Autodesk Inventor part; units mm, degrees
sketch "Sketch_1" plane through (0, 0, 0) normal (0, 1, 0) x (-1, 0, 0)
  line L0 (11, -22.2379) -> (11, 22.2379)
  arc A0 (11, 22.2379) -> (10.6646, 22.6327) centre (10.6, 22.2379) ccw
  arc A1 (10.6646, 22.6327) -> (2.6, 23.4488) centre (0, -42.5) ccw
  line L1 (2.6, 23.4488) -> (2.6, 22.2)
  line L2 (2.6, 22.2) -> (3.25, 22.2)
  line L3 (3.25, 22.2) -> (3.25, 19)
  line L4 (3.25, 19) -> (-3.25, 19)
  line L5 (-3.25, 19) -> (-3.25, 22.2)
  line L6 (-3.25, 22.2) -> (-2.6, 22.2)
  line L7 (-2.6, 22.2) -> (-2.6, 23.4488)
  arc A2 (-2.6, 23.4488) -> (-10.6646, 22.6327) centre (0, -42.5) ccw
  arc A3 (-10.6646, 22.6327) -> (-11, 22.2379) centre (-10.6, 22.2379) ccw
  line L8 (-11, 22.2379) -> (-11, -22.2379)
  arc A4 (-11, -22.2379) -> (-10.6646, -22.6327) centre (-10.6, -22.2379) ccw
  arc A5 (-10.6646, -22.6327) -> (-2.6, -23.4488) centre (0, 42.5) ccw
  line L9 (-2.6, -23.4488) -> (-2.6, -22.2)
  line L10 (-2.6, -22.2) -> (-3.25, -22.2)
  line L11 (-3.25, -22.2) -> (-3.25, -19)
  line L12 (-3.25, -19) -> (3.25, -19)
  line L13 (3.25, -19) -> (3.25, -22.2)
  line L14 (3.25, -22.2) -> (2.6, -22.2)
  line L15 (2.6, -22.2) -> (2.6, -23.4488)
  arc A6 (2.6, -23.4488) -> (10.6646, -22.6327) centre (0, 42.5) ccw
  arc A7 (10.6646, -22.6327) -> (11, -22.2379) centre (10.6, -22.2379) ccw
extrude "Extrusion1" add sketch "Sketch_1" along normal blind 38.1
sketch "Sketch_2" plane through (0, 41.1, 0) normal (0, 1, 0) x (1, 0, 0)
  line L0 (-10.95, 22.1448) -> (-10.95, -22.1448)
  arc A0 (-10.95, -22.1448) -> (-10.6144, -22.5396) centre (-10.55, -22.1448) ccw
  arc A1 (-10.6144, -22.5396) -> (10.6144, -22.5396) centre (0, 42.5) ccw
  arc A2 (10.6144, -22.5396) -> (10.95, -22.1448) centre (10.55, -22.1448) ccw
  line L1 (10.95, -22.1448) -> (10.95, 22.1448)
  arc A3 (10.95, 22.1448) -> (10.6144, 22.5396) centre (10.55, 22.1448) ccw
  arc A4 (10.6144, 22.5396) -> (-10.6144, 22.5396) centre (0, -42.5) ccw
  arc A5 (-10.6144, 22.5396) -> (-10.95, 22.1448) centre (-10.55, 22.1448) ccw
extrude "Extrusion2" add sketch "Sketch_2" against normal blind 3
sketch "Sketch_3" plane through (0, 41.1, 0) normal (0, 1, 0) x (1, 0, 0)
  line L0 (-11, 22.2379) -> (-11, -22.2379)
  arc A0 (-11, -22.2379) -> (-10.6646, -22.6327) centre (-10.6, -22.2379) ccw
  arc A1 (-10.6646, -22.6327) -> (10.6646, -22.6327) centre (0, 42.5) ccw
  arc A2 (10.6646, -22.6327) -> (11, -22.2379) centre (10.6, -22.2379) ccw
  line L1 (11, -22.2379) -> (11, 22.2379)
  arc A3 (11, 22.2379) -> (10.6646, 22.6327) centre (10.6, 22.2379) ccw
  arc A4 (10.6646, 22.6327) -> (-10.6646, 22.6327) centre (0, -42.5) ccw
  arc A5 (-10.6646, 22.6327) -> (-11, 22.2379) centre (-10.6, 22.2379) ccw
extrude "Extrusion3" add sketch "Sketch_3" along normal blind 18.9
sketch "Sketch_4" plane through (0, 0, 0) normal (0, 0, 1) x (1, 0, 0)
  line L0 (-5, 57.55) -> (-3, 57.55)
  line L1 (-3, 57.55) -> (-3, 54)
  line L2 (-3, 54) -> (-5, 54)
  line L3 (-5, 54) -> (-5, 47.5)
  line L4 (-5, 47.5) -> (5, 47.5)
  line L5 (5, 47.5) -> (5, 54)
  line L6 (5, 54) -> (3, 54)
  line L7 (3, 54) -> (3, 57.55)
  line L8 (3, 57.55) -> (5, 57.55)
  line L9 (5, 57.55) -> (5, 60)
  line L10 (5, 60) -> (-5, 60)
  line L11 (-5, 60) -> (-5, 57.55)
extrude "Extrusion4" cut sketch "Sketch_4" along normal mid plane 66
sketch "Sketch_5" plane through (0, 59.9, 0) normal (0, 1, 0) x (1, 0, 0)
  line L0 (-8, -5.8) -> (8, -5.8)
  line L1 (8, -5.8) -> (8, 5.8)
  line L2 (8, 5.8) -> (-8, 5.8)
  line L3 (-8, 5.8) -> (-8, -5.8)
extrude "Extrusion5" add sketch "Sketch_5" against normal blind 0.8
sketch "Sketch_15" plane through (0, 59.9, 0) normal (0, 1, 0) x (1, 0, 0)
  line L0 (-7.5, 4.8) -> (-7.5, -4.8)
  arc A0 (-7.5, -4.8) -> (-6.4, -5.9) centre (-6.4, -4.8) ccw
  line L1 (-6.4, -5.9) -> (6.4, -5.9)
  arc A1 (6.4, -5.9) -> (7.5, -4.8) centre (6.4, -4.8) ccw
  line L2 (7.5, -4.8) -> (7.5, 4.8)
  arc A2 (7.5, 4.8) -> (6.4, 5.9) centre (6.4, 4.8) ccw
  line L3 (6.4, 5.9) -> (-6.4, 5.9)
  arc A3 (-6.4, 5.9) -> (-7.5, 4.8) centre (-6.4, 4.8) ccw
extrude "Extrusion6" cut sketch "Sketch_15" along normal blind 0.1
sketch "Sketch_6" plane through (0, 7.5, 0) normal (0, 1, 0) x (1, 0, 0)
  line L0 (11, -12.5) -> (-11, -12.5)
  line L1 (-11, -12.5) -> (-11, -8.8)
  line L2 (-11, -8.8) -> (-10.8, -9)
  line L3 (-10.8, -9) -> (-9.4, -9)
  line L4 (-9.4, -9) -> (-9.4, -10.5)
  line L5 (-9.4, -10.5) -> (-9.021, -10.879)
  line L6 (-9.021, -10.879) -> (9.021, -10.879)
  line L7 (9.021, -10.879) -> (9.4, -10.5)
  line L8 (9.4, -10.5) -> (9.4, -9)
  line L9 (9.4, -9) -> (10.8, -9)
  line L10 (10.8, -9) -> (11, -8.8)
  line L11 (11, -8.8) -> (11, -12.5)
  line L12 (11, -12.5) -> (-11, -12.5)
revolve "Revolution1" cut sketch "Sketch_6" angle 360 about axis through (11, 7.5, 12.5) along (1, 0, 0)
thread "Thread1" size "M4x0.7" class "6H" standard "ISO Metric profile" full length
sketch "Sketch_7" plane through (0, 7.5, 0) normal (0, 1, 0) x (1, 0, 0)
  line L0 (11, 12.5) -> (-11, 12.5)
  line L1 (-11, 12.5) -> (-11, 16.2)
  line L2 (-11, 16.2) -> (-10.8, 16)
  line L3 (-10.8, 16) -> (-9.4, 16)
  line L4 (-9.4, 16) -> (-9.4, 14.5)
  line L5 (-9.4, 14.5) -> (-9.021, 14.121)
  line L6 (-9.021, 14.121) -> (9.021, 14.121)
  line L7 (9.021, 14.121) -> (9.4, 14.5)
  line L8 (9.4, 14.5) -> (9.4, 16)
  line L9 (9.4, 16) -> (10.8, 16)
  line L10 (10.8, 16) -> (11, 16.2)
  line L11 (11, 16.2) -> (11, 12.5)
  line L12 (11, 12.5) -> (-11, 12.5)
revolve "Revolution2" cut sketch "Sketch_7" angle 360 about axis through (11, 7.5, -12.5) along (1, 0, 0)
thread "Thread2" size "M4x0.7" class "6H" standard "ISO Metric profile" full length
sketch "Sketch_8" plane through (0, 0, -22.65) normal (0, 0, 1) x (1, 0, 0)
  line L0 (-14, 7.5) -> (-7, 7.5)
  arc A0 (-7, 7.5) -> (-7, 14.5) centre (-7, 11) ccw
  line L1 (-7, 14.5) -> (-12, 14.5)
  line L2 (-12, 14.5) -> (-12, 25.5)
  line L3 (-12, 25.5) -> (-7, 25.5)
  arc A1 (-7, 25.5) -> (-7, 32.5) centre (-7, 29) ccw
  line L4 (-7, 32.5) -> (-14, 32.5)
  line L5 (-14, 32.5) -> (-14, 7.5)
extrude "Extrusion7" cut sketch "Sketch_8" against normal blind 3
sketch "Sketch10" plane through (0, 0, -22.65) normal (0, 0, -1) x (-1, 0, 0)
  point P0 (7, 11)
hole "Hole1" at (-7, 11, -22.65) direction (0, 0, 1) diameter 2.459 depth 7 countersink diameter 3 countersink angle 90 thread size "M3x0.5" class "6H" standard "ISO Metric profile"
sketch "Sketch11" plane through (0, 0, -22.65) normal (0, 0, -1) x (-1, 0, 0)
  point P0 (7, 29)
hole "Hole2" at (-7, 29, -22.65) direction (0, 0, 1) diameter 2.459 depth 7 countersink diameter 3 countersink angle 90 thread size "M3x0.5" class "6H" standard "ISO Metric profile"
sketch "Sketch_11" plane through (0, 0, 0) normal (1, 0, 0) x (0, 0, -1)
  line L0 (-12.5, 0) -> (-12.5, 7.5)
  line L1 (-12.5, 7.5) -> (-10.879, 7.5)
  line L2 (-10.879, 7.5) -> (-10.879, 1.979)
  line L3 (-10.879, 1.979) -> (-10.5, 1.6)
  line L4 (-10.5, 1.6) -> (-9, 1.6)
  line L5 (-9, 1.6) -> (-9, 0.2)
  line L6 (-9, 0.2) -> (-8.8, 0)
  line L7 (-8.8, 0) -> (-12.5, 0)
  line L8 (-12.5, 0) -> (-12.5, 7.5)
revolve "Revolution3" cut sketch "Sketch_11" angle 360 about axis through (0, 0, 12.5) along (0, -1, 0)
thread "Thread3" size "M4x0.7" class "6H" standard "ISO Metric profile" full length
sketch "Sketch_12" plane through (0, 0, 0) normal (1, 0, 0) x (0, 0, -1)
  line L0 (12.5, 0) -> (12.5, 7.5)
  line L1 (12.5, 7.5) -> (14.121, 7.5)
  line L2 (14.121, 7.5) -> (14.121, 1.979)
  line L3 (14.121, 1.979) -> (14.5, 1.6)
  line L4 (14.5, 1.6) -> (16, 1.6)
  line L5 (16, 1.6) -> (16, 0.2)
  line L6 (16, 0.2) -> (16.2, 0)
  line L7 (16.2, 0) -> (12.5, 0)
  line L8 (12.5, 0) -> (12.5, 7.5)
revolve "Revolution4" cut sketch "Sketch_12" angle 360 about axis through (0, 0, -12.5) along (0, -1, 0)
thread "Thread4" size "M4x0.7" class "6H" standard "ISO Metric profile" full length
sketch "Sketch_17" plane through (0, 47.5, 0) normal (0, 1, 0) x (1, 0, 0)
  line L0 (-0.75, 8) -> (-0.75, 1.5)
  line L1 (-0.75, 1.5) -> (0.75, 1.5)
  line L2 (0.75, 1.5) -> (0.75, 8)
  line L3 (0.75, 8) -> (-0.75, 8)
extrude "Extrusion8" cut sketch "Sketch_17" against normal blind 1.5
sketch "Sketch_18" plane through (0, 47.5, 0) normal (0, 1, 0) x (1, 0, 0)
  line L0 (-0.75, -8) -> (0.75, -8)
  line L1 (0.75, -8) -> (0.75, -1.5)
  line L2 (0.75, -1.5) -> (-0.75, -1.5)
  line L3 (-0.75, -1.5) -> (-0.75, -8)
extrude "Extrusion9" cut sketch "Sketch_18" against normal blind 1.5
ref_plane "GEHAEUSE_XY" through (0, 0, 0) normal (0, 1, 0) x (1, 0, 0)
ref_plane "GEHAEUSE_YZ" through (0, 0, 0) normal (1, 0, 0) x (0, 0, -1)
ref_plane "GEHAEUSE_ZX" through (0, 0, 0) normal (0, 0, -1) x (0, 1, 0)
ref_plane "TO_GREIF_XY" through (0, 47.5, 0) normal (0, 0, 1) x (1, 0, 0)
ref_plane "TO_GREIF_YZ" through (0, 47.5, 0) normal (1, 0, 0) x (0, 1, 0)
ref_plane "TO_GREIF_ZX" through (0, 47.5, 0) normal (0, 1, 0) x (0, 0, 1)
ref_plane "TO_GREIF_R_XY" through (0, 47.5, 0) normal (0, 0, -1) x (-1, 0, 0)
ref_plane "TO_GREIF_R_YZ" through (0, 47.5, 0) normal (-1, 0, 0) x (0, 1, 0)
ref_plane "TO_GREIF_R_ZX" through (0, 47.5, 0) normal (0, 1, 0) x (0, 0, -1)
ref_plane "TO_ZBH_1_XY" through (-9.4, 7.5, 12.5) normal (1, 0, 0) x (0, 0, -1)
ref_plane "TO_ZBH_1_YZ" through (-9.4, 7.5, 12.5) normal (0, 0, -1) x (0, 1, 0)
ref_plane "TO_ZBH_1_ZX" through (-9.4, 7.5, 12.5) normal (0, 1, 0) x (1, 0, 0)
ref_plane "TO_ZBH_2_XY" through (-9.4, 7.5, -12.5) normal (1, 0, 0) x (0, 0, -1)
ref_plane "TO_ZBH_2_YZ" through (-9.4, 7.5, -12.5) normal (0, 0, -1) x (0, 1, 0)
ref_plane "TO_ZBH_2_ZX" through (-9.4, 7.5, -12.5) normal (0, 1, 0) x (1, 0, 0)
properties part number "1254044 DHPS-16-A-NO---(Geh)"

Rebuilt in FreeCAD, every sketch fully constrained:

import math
import FreeCAD as App
import Part
import Sketcher
from FreeCAD import Vector
Q = App.Units.Quantity


def add_polygon(sketch, points):
    """Adds a closed chain of lines whose ends are joined by coincident constraints."""
    first, n = sketch.GeometryCount, len(points)
    for a, b in zip(points, points[1:] + points[:1]):
        sketch.addGeometry(Part.LineSegment(App.Vector(*a, 0), App.Vector(*b, 0)), False)
    for i in range(n):
        sketch.addConstraint(Sketcher.Constraint("Coincident", first + i, 2, first + (i + 1) % n, 1))

doc = App.newDocument("Part")
body = doc.addObject("PartDesign::Body", "Body")

sketch1 = body.newObject("Sketcher::SketchObject", "Sketch")
sketch1.AttachmentSupport = (doc.getObject("XZ_Plane"), [""])
sketch1.MapMode = "FlatFace"
sketch1.addGeometry([
    Part.ArcOfCircle(Part.Circle(Vector(-10.6, -22.24, 0), Vector(0, 0, 1), 0.4), math.radians(180), math.radians(261)),
    Part.LineSegment(Vector(-11, -22.24, 0), Vector(-11, 22.24, 0)),
    Part.ArcOfCircle(Part.Circle(Vector(-10.6, 22.24, 0), Vector(0, 0, 1), 0.4), math.radians(99), math.radians(180)),
    Part.ArcOfCircle(Part.Circle(Vector(0, -42.5, 0), Vector(0, 0, 1), 66), math.radians(92.26), math.radians(99.3)),
    Part.LineSegment(Vector(-2.6, 23.45, 0), Vector(-2.6, 22.2, 0)),
    Part.LineSegment(Vector(-2.6, 22.2, 0), Vector(-3.25, 22.2, 0)),
    Part.LineSegment(Vector(-3.25, 22.2, 0), Vector(-3.25, 19, 0)),
    Part.LineSegment(Vector(-3.25, 19, 0), Vector(3.25, 19, 0)),
    Part.LineSegment(Vector(3.25, 19, 0), Vector(3.25, 22.2, 0)),
    Part.LineSegment(Vector(3.25, 22.2, 0), Vector(2.6, 22.2, 0)),
    Part.LineSegment(Vector(2.6, 22.2, 0), Vector(2.6, 23.45, 0)),
    Part.ArcOfCircle(Part.Circle(Vector(0, -42.5, 0), Vector(0, 0, 1), 66), math.radians(80.7), math.radians(87.74)),
    Part.ArcOfCircle(Part.Circle(Vector(10.6, 22.24, 0), Vector(0, 0, 1), 0.4), math.radians(0), math.radians(81)),
    Part.LineSegment(Vector(11, 22.24, 0), Vector(11, -22.24, 0)),
    Part.ArcOfCircle(Part.Circle(Vector(10.6, -22.24, 0), Vector(0, 0, 1), 0.4), math.radians(-81), math.radians(0)),
    Part.ArcOfCircle(Part.Circle(Vector(0, 42.5, 0), Vector(0, 0, 1), 66), math.radians(-87.74), math.radians(-80.7)),
    Part.LineSegment(Vector(2.6, -23.45, 0), Vector(2.6, -22.2, 0)),
    Part.LineSegment(Vector(2.6, -22.2, 0), Vector(3.25, -22.2, 0)),
    Part.LineSegment(Vector(3.25, -22.2, 0), Vector(3.25, -19, 0)),
    Part.LineSegment(Vector(3.25, -19, 0), Vector(-3.25, -19, 0)),
    Part.LineSegment(Vector(-3.25, -19, 0), Vector(-3.25, -22.2, 0)),
    Part.LineSegment(Vector(-3.25, -22.2, 0), Vector(-2.6, -22.2, 0)),
    Part.LineSegment(Vector(-2.6, -22.2, 0), Vector(-2.6, -23.45, 0)),
    Part.ArcOfCircle(Part.Circle(Vector(0, 42.5, 0), Vector(0, 0, 1), 66), math.radians(-99.3), math.radians(-92.26)),
], False)
sketch1.addConstraint([
    Sketcher.Constraint("Tangent", 0, 1, 1, 1),
    Sketcher.Constraint("Tangent", 1, 2, 2, 2),
    Sketcher.Constraint("Tangent", 2, 1, 3, 2),
    Sketcher.Constraint("Coincident", 3, 1, 4, 1),
    Sketcher.Constraint("Coincident", 4, 2, 5, 1),
    Sketcher.Constraint("Coincident", 5, 2, 6, 1),
    Sketcher.Constraint("Coincident", 6, 2, 7, 1),
    Sketcher.Constraint("Coincident", 7, 2, 8, 1),
    Sketcher.Constraint("Coincident", 8, 2, 9, 1),
    Sketcher.Constraint("Coincident", 9, 2, 10, 1),
    Sketcher.Constraint("Coincident", 10, 2, 11, 2),
    Sketcher.Constraint("Tangent", 11, 1, 12, 2),
    Sketcher.Constraint("Tangent", 12, 1, 13, 1),
    Sketcher.Constraint("Tangent", 13, 2, 14, 2),
    Sketcher.Constraint("Tangent", 14, 1, 15, 2),
    Sketcher.Constraint("Coincident", 15, 1, 16, 1),
    Sketcher.Constraint("Coincident", 16, 2, 17, 1),
    Sketcher.Constraint("Coincident", 17, 2, 18, 1),
    Sketcher.Constraint("Coincident", 18, 2, 19, 1),
    Sketcher.Constraint("Coincident", 19, 2, 20, 1),
    Sketcher.Constraint("Coincident", 20, 2, 21, 1),
    Sketcher.Constraint("Coincident", 21, 2, 22, 1),
    Sketcher.Constraint("Coincident", 22, 2, 23, 2),
    Sketcher.Constraint("Tangent", 23, 1, 0, 2),
    Sketcher.Constraint("Vertical", 1),
    Sketcher.Constraint("Vertical", 4),
    Sketcher.Constraint("Horizontal", 5),
    Sketcher.Constraint("Vertical", 6),
    Sketcher.Constraint("Horizontal", 7),
    Sketcher.Constraint("Vertical", 8),
    Sketcher.Constraint("Horizontal", 9),
    Sketcher.Constraint("Vertical", 10),
    Sketcher.Constraint("Vertical", 13),
    Sketcher.Constraint("Vertical", 16),
    Sketcher.Constraint("Horizontal", 17),
    Sketcher.Constraint("Vertical", 18),
    Sketcher.Constraint("Horizontal", 19),
    Sketcher.Constraint("Vertical", 20),
    Sketcher.Constraint("Horizontal", 21),
    Sketcher.Constraint("Vertical", 22),
    Sketcher.Constraint("Equal", 0, 2),
    Sketcher.Constraint("Equal", 2, 12),
    Sketcher.Constraint("Equal", 12, 14),
    Sketcher.Constraint("Equal", 3, 15),
    Sketcher.Constraint("Equal", 11, 23),
    Sketcher.Constraint("Symmetric", 0, 3, 12, 3, -1, 1),
    Sketcher.Constraint("Symmetric", 3, 3, 15, 3, -1, 1),
    Sketcher.Constraint("Symmetric", 4, 2, 16, 2, -1, 1),
    Sketcher.Constraint("Symmetric", 6, 2, 18, 2, -1, 1),
    Sketcher.Constraint("Symmetric", 8, 2, 20, 2, -1, 1),
    Sketcher.Constraint("Symmetric", 10, 2, 22, 2, -1, 1),
    Sketcher.Constraint("Symmetric", 5, 2, 8, 2, -2),
    Sketcher.Constraint("Symmetric", 3, 1, 10, 2, -2),
    Sketcher.Constraint("Horizontal", 2, 3, 12, 3),
    Sketcher.Constraint("Radius", 0, Q("0.4 mm")),
    Sketcher.Constraint("DistanceX", 7, 1, 7, 2, Q("6.5 mm")),
    Sketcher.Constraint("DistanceY", 6, 2, 6, 1, Q("3.2 mm")),
    Sketcher.Constraint("DistanceX", 0, 1, -1, 1, Q("11 mm")),
    Sketcher.Constraint("DistanceY", -1, 1, 6, 2, Q("19 mm")),
    Sketcher.Constraint("DistanceY", 11, 3, 15, 3, Q("85 mm")),
    Sketcher.Constraint("DistanceX", 2, 3, 3, 1, Q("8 mm")),
    Sketcher.Constraint("Radius", 3, Q("66.0039 mm")),
    Sketcher.Constraint("Radius", 11, Q("65.9962 mm")),
    Sketcher.Constraint("DistanceY", 1, 1, 1, 2, Q("44.4758 mm")),
])
pad1 = body.newObject("PartDesign::Pad", "Pad")
pad1.Profile = sketch1
pad1.Length = 38.1
pad1.Reversed = True

sketch2 = body.newObject("Sketcher::SketchObject", "Sketch001")
sketch2.AttachmentSupport = (doc.getObject("XZ_Plane"), [""])
sketch2.MapMode = "FlatFace"
sketch2.AttachmentOffset = App.Placement(Vector(0, 0, -41.1), App.Rotation())
sketch2.addGeometry([
    Part.ArcOfCircle(Part.Circle(Vector(-10.55, -22.14, 0), Vector(0, 0, 1), 0.4), math.radians(180), math.radians(261)),
    Part.LineSegment(Vector(-10.95, -22.14, 0), Vector(-10.95, 22.14, 0)),
    Part.ArcOfCircle(Part.Circle(Vector(-10.55, 22.14, 0), Vector(0, 0, 1), 0.4), math.radians(99), math.radians(180)),
    Part.ArcOfCircle(Part.Circle(Vector(0, -42.5, 0), Vector(0, 0, 1), 65.9), math.radians(80.73), math.radians(99.27)),
    Part.ArcOfCircle(Part.Circle(Vector(10.55, 22.14, 0), Vector(0, 0, 1), 0.4), math.radians(0), math.radians(81)),
    Part.LineSegment(Vector(10.95, 22.14, 0), Vector(10.95, -22.14, 0)),
    Part.ArcOfCircle(Part.Circle(Vector(10.55, -22.14, 0), Vector(0, 0, 1), 0.4), math.radians(-81), math.radians(0)),
    Part.ArcOfCircle(Part.Circle(Vector(0, 42.5, 0), Vector(0, 0, 1), 65.9), math.radians(-99.27), math.radians(-80.73)),
], False)
sketch2.addConstraint([
    Sketcher.Constraint("Tangent", 0, 1, 1, 1),
    Sketcher.Constraint("Tangent", 1, 2, 2, 2),
    Sketcher.Constraint("Tangent", 2, 1, 3, 2),
    Sketcher.Constraint("Tangent", 3, 1, 4, 2),
    Sketcher.Constraint("Tangent", 4, 1, 5, 1),
    Sketcher.Constraint("Tangent", 5, 2, 6, 2),
    Sketcher.Constraint("Tangent", 6, 1, 7, 2),
    Sketcher.Constraint("Tangent", 7, 1, 0, 2),
    Sketcher.Constraint("Vertical", 1),
    Sketcher.Constraint("Vertical", 5),
    Sketcher.Constraint("Equal", 0, 2),
    Sketcher.Constraint("Equal", 2, 4),
    Sketcher.Constraint("Equal", 4, 6),
    Sketcher.Constraint("Equal", 3, 7),
    Sketcher.Constraint("Symmetric", 0, 3, 4, 3, -1, 1),
    Sketcher.Constraint("Symmetric", 3, 3, 7, 3, -1),
    Sketcher.Constraint("Radius", 0, Q("0.4 mm")),
    Sketcher.Constraint("Radius", 3, Q("65.9 mm")),
    Sketcher.Constraint("DistanceY", 3, 3, 7, 3, Q("85 mm")),
    Sketcher.Constraint("DistanceX", 2, 3, 4, 3, Q("21.1 mm")),
])
pad2 = body.newObject("PartDesign::Pad", "Pad001")
pad2.Profile = sketch2
pad2.Length = 3

sketch3 = body.newObject("Sketcher::SketchObject", "Sketch002")
sketch3.AttachmentSupport = (doc.getObject("XZ_Plane"), [""])
sketch3.MapMode = "FlatFace"
sketch3.AttachmentOffset = App.Placement(Vector(0, 0, -41.1), App.Rotation())
sketch3.addGeometry([
    Part.ArcOfCircle(Part.Circle(Vector(-10.6, -22.24, 0), Vector(0, 0, 1), 0.4), math.radians(180), math.radians(261)),
    Part.LineSegment(Vector(-11, -22.24, 0), Vector(-11, 22.24, 0)),
    Part.ArcOfCircle(Part.Circle(Vector(-10.6, 22.24, 0), Vector(0, 0, 1), 0.4), math.radians(99), math.radians(180)),
    Part.ArcOfCircle(Part.Circle(Vector(0, -42.5, 0), Vector(0, 0, 1), 66), math.radians(80.7), math.radians(99.3)),
    Part.ArcOfCircle(Part.Circle(Vector(10.6, 22.24, 0), Vector(0, 0, 1), 0.4), math.radians(0), math.radians(81)),
    Part.LineSegment(Vector(11, 22.24, 0), Vector(11, -22.24, 0)),
    Part.ArcOfCircle(Part.Circle(Vector(10.6, -22.24, 0), Vector(0, 0, 1), 0.4), math.radians(-81), math.radians(0)),
    Part.ArcOfCircle(Part.Circle(Vector(0, 42.5, 0), Vector(0, 0, 1), 66), math.radians(-99.3), math.radians(-80.7)),
], False)
sketch3.addConstraint([
    Sketcher.Constraint("Tangent", 0, 1, 1, 1),
    Sketcher.Constraint("Tangent", 1, 2, 2, 2),
    Sketcher.Constraint("Tangent", 2, 1, 3, 2),
    Sketcher.Constraint("Tangent", 3, 1, 4, 2),
    Sketcher.Constraint("Tangent", 4, 1, 5, 1),
    Sketcher.Constraint("Tangent", 5, 2, 6, 2),
    Sketcher.Constraint("Tangent", 6, 1, 7, 2),
    Sketcher.Constraint("Tangent", 7, 1, 0, 2),
    Sketcher.Constraint("Vertical", 1),
    Sketcher.Constraint("Vertical", 5),
    Sketcher.Constraint("Equal", 0, 2),
    Sketcher.Constraint("Equal", 2, 4),
    Sketcher.Constraint("Equal", 4, 6),
    Sketcher.Constraint("Equal", 3, 7),
    Sketcher.Constraint("Symmetric", 0, 3, 4, 3, -1, 1),
    Sketcher.Constraint("Symmetric", 3, 3, 7, 3, -1),
    Sketcher.Constraint("Radius", 3, Q("66 mm")),
    Sketcher.Constraint("Radius", 0, Q("0.4 mm")),
    Sketcher.Constraint("DistanceX", 0, 1, -1, 1, Q("11 mm")),
    Sketcher.Constraint("DistanceY", 3, 3, 7, 3, Q("85 mm")),
])
pad3 = body.newObject("PartDesign::Pad", "Pad002")
pad3.Profile = sketch3
pad3.Length = 18.9
pad3.Reversed = True

sketch4 = body.newObject("Sketcher::SketchObject", "Sketch003")
sketch4.AttachmentSupport = (doc.getObject("XY_Plane"), [""])
sketch4.MapMode = "FlatFace"
add_polygon(sketch4, [(-5, 60), (-5, 57.5), (-3, 57.5), (-3, 54), (-5, 54), (-5, 47.5), (5, 47.5), (5, 54), (3, 54), (3, 57.5), (5, 57.5), (5, 60)])
sketch4.addConstraint([
    Sketcher.Constraint("Vertical", 0),
    Sketcher.Constraint("Horizontal", 1),
    Sketcher.Constraint("Vertical", 2),
    Sketcher.Constraint("Horizontal", 3),
    Sketcher.Constraint("Vertical", 4),
    Sketcher.Constraint("Horizontal", 5),
    Sketcher.Constraint("Vertical", 6),
    Sketcher.Constraint("Horizontal", 7),
    Sketcher.Constraint("Vertical", 8),
    Sketcher.Constraint("Horizontal", 9),
    Sketcher.Constraint("Vertical", 10),
    Sketcher.Constraint("Horizontal", 11),
    Sketcher.Constraint("Symmetric", 3, 2, 6, 2, -2),
    Sketcher.Constraint("Symmetric", 1, 2, 8, 2, -2),
    Sketcher.Constraint("Vertical", 0, 2, 3, 2),
    Sketcher.Constraint("Vertical", 6, 2, 9, 2),
    Sketcher.Constraint("DistanceX", 1, 1, 1, 2, Q("2 mm")),
    Sketcher.Constraint("DistanceX", 5, 1, 5, 2, Q("10 mm")),
    Sketcher.Constraint("DistanceY", 4, 2, 4, 1, Q("6.5 mm")),
    Sketcher.Constraint("DistanceY", -1, 1, 2, 2, Q("54 mm")),
    Sketcher.Constraint("DistanceY", -1, 1, 10, 2, Q("60 mm")),
    Sketcher.Constraint("DistanceY", 0, 2, 0, 1, Q("2.45 mm")),
])
pocket1 = body.newObject("PartDesign::Pocket", "Pocket")
pocket1.Profile = sketch4
pocket1.Length = 66
pocket1.Midplane = True

sketch5 = body.newObject("Sketcher::SketchObject", "Sketch004")
sketch5.AttachmentSupport = (doc.getObject("XZ_Plane"), [""])
sketch5.MapMode = "FlatFace"
sketch5.AttachmentOffset = App.Placement(Vector(0, 0, -59.9), App.Rotation())
add_polygon(sketch5, [(-8, -6), (-8, 6), (8, 6), (8, -6)])
sketch5.addConstraint([
    Sketcher.Constraint("Vertical", 0),
    Sketcher.Constraint("Horizontal", 1),
    Sketcher.Constraint("Vertical", 2),
    Sketcher.Constraint("Horizontal", 3),
    Sketcher.Constraint("Symmetric", 0, 2, 2, 2, -1, 1),
    Sketcher.Constraint("DistanceX", 1, 1, 1, 2, Q("16 mm")),
    Sketcher.Constraint("DistanceY", 0, 1, 0, 2, Q("11.6 mm")),
])
pad4 = body.newObject("PartDesign::Pad", "Pad003")
pad4.Profile = sketch5
pad4.Length = 0.8

sketch6 = body.newObject("Sketcher::SketchObject", "Sketch005")
sketch6.AttachmentSupport = (doc.getObject("XZ_Plane"), [""])
sketch6.MapMode = "FlatFace"
sketch6.AttachmentOffset = App.Placement(Vector(0, 0, -59.9), App.Rotation())
sketch6.addGeometry([
    Part.ArcOfCircle(Part.Circle(Vector(-6.4, -4.8, 0), Vector(0, 0, 1), 1.1), math.radians(180), math.radians(270)),
    Part.LineSegment(Vector(-7.5, -4.8, 0), Vector(-7.5, 4.8, 0)),
    Part.ArcOfCircle(Part.Circle(Vector(-6.4, 4.8, 0), Vector(0, 0, 1), 1.1), math.radians(90), math.radians(180)),
    Part.LineSegment(Vector(-6.4, 5.9, 0), Vector(6.4, 5.9, 0)),
    Part.ArcOfCircle(Part.Circle(Vector(6.4, 4.8, 0), Vector(0, 0, 1), 1.1), math.radians(0), math.radians(90)),
    Part.LineSegment(Vector(7.5, 4.8, 0), Vector(7.5, -4.8, 0)),
    Part.ArcOfCircle(Part.Circle(Vector(6.4, -4.8, 0), Vector(0, 0, 1), 1.1), math.radians(-90), math.radians(0)),
    Part.LineSegment(Vector(6.4, -5.9, 0), Vector(-6.4, -5.9, 0)),
], False)
sketch6.addConstraint([
    Sketcher.Constraint("Tangent", 0, 1, 1, 1),
    Sketcher.Constraint("Tangent", 1, 2, 2, 2),
    Sketcher.Constraint("Tangent", 2, 1, 3, 1),
    Sketcher.Constraint("Tangent", 3, 2, 4, 2),
    Sketcher.Constraint("Tangent", 4, 1, 5, 1),
    Sketcher.Constraint("Tangent", 5, 2, 6, 2),
    Sketcher.Constraint("Tangent", 6, 1, 7, 1),
    Sketcher.Constraint("Tangent", 7, 2, 0, 2),
    Sketcher.Constraint("Vertical", 1),
    Sketcher.Constraint("Horizontal", 3),
    Sketcher.Constraint("Vertical", 5),
    Sketcher.Constraint("Horizontal", 7),
    Sketcher.Constraint("Equal", 0, 2),
    Sketcher.Constraint("Equal", 2, 4),
    Sketcher.Constraint("Equal", 4, 6),
    Sketcher.Constraint("Symmetric", 0, 3, 4, 3, -1, 1),
    Sketcher.Constraint("Radius", 0, Q("1.1 mm")),
    Sketcher.Constraint("DistanceX", 3, 1, 3, 2, Q("12.8 mm")),
    Sketcher.Constraint("DistanceY", 1, 1, 1, 2, Q("9.6 mm")),
])
pocket2 = body.newObject("PartDesign::Pocket", "Pocket001")
pocket2.Profile = sketch6
pocket2.Length = 0.1

sketch7 = body.newObject("Sketcher::SketchObject", "Sketch006")
sketch7.AttachmentSupport = (doc.getObject("XZ_Plane"), [""])
sketch7.MapMode = "FlatFace"
sketch7.AttachmentOffset = App.Placement(Vector(0, 0, -7.5), App.Rotation())
add_polygon(sketch7, [(-11, 12.5), (11, 12.5), (11, 8.8), (10.8, 9), (9.4, 9), (9.4, 10.5), (9.02, 10.88), (-9.02, 10.88), (-9.4, 10.5), (-9.4, 9), (-10.8, 9), (-11, 8.8)])
sketch7.addGeometry(Part.LineSegment(Vector(-11, 12.5, 0), Vector(11, 12.5, 0)), True)
sketch7.addConstraint([
    Sketcher.Constraint("Horizontal", 0),
    Sketcher.Constraint("Vertical", 1),
    Sketcher.Constraint("Horizontal", 3),
    Sketcher.Constraint("Vertical", 4),
    Sketcher.Constraint("Horizontal", 6),
    Sketcher.Constraint("Vertical", 8),
    Sketcher.Constraint("Horizontal", 9),
    Sketcher.Constraint("Vertical", 11),
    Sketcher.Constraint("Horizontal", 12),
    Sketcher.Constraint("Coincident", 12, 1, 11, 2),
    Sketcher.Constraint("Symmetric", 4, 2, 7, 2, -2),
    Sketcher.Constraint("Symmetric", 2, 2, 9, 2, -2),
    Sketcher.Constraint("Symmetric", 1, 2, 10, 2, -2),
    Sketcher.Constraint("Parallel", 2, 5),
    Sketcher.Constraint("Perpendicular", 5, 7),
    Sketcher.Constraint("Parallel", 7, 10),
    Sketcher.Constraint("Vertical", 1, 2, 12, 2),
    Sketcher.Constraint("DistanceX", 0, 1, 0, 2, Q("22 mm")),
    Sketcher.Constraint("DistanceX", 3, 2, 3, 1, Q("1.4 mm")),
    Sketcher.Constraint("DistanceY", 1, 2, 1, 1, Q("3.7 mm")),
    Sketcher.Constraint("DistanceY", 4, 1, 4, 2, Q("1.5 mm")),
    Sketcher.Constraint("DistanceY", -1, 1, 2, 2, Q("9 mm")),
    Sketcher.Constraint("DistanceY", 4, 2, 0, 2, Q("2 mm")),
    Sketcher.Constraint("DistanceX", 6, 2, 6, 1, Q("18.042 mm")),
])
groove = body.newObject("PartDesign::Groove", "Groove")
groove.Profile = sketch7
groove.ReferenceAxis = (sketch7, ["Axis0"])
groove.Angle = 360

sketch8 = body.newObject("Sketcher::SketchObject", "Sketch007")
sketch8.AttachmentSupport = (doc.getObject("XZ_Plane"), [""])
sketch8.MapMode = "FlatFace"
sketch8.AttachmentOffset = App.Placement(Vector(0, 0, -7.5), App.Rotation())
add_polygon(sketch8, [(-11, -12.5), (11, -12.5), (11, -16.2), (10.8, -16), (9.4, -16), (9.4, -14.5), (9.02, -14.12), (-9.02, -14.12), (-9.4, -14.5), (-9.4, -16), (-10.8, -16), (-11, -16.2)])
sketch8.addGeometry(Part.LineSegment(Vector(-11, -12.5, 0), Vector(11, -12.5, 0)), True)
sketch8.addConstraint([
    Sketcher.Constraint("Horizontal", 0),
    Sketcher.Constraint("Vertical", 1),
    Sketcher.Constraint("Horizontal", 3),
    Sketcher.Constraint("Vertical", 4),
    Sketcher.Constraint("Horizontal", 6),
    Sketcher.Constraint("Vertical", 8),
    Sketcher.Constraint("Horizontal", 9),
    Sketcher.Constraint("Vertical", 11),
    Sketcher.Constraint("Horizontal", 12),
    Sketcher.Constraint("Coincident", 12, 1, 11, 2),
    Sketcher.Constraint("Symmetric", 4, 2, 7, 2, -2),
    Sketcher.Constraint("Symmetric", 2, 2, 9, 2, -2),
    Sketcher.Constraint("Symmetric", 1, 2, 10, 2, -2),
    Sketcher.Constraint("Parallel", 2, 5),
    Sketcher.Constraint("Perpendicular", 5, 7),
    Sketcher.Constraint("Parallel", 7, 10),
    Sketcher.Constraint("Vertical", 1, 2, 12, 2),
    Sketcher.Constraint("DistanceX", 0, 1, 0, 2, Q("22 mm")),
    Sketcher.Constraint("DistanceX", 3, 2, 3, 1, Q("1.4 mm")),
    Sketcher.Constraint("DistanceY", 1, 2, 1, 1, Q("3.7 mm")),
    Sketcher.Constraint("DistanceY", 4, 1, 4, 2, Q("1.5 mm")),
    Sketcher.Constraint("DistanceY", 2, 2, -1, 1, Q("16 mm")),
    Sketcher.Constraint("DistanceY", 4, 2, 0, 2, Q("2 mm")),
    Sketcher.Constraint("DistanceX", 6, 2, 6, 1, Q("18.042 mm")),
])
groove2 = body.newObject("PartDesign::Groove", "Groove001")
groove2.Profile = sketch8
groove2.ReferenceAxis = (sketch8, ["Axis0"])
groove2.Angle = 360

sketch9 = body.newObject("Sketcher::SketchObject", "Sketch008")
sketch9.AttachmentSupport = (doc.getObject("XY_Plane"), [""])
sketch9.MapMode = "FlatFace"
sketch9.AttachmentOffset = App.Placement(Vector(0, 0, -22.65), App.Rotation())
sketch9.addGeometry([
    Part.LineSegment(Vector(-14, 32.5, 0), Vector(-14, 7.5, 0)),
    Part.LineSegment(Vector(-14, 7.5, 0), Vector(-7, 7.5, 0)),
    Part.ArcOfCircle(Part.Circle(Vector(-7, 11, 0), Vector(0, 0, 1), 3.5), math.radians(-90), math.radians(90)),
    Part.LineSegment(Vector(-7, 14.5, 0), Vector(-12, 14.5, 0)),
    Part.LineSegment(Vector(-12, 14.5, 0), Vector(-12, 25.5, 0)),
    Part.LineSegment(Vector(-12, 25.5, 0), Vector(-7, 25.5, 0)),
    Part.ArcOfCircle(Part.Circle(Vector(-7, 29, 0), Vector(0, 0, 1), 3.5), math.radians(-90), math.radians(90)),
    Part.LineSegment(Vector(-7, 32.5, 0), Vector(-14, 32.5, 0)),
], False)
sketch9.addConstraint([
    Sketcher.Constraint("Coincident", 0, 2, 1, 1),
    Sketcher.Constraint("Tangent", 1, 2, 2, 1),
    Sketcher.Constraint("Tangent", 2, 2, 3, 1),
    Sketcher.Constraint("Coincident", 3, 2, 4, 1),
    Sketcher.Constraint("Coincident", 4, 2, 5, 1),
    Sketcher.Constraint("Tangent", 5, 2, 6, 1),
    Sketcher.Constraint("Tangent", 6, 2, 7, 1),
    Sketcher.Constraint("Coincident", 7, 2, 0, 1),
    Sketcher.Constraint("Vertical", 0),
    Sketcher.Constraint("Horizontal", 1),
    Sketcher.Constraint("Horizontal", 3),
    Sketcher.Constraint("Vertical", 4),
    Sketcher.Constraint("Horizontal", 5),
    Sketcher.Constraint("Horizontal", 7),
    Sketcher.Constraint("Equal", 2, 6),
    Sketcher.Constraint("Vertical", 2, 3, 6, 3),
    Sketcher.Constraint("Radius", 2, Q("3.5 mm")),
    Sketcher.Constraint("DistanceX", 1, 1, 1, 2, Q("7 mm")),
    Sketcher.Constraint("DistanceX", 3, 2, 3, 1, Q("5 mm")),
    Sketcher.Constraint("DistanceY", 0, 2, 0, 1, Q("25 mm")),
    Sketcher.Constraint("DistanceX", 2, 3, -1, 1, Q("7 mm")),
    Sketcher.Constraint("DistanceY", -1, 1, 2, 3, Q("11 mm")),
])
pocket3 = body.newObject("PartDesign::Pocket", "Pocket002")
pocket3.Profile = sketch9
pocket3.Length = 3

sketch10 = body.newObject("Sketcher::SketchObject", "Sketch009")
sketch10.AttachmentSupport = (doc.getObject("XY_Plane"), [""])
sketch10.MapMode = "FlatFace"
sketch10.AttachmentOffset = App.Placement(Vector(0, 0, -22.65), App.Rotation())
sketch10.addGeometry(Part.Circle(Vector(-7, 11, 0), Vector(0, 0, 1), 1.2), False)
sketch10.addConstraint([
    Sketcher.Constraint("Diameter", 0, Q("2.459 mm")),
    Sketcher.Constraint("DistanceX", 0, 3, -1, 1, Q("7 mm")),
    Sketcher.Constraint("DistanceY", -1, 1, 0, 3, Q("11 mm")),
])
doc.recompute()
hole = body.newObject("PartDesign::Hole", "Hole")
hole.Profile = sketch10
hole.ThreadType = "None"
hole.Diameter = 2.459
hole.DepthType = "Dimension"
hole.Depth = 7
hole.DrillPoint = "Flat"
hole.HoleCutType = "Countersink"
hole.HoleCutDiameter = 3
hole.HoleCutCountersinkAngle = 90
hole.Reversed = True

sketch11 = body.newObject("Sketcher::SketchObject", "Sketch010")
sketch11.AttachmentSupport = (doc.getObject("XY_Plane"), [""])
sketch11.MapMode = "FlatFace"
sketch11.AttachmentOffset = App.Placement(Vector(0, 0, -22.65), App.Rotation())
sketch11.addGeometry(Part.Circle(Vector(-7, 29, 0), Vector(0, 0, 1), 1.2), False)
sketch11.addConstraint([
    Sketcher.Constraint("Diameter", 0, Q("2.459 mm")),
    Sketcher.Constraint("DistanceX", 0, 3, -1, 1, Q("7 mm")),
    Sketcher.Constraint("DistanceY", -1, 1, 0, 3, Q("29 mm")),
])
doc.recompute()
hole2 = body.newObject("PartDesign::Hole", "Hole001")
hole2.Profile = sketch11
hole2.ThreadType = "None"
hole2.Diameter = 2.459
hole2.DepthType = "Dimension"
hole2.Depth = 7
hole2.DrillPoint = "Flat"
hole2.HoleCutType = "Countersink"
hole2.HoleCutDiameter = 3
hole2.HoleCutCountersinkAngle = 90
hole2.Reversed = True

sketch12 = body.newObject("Sketcher::SketchObject", "Sketch011")
sketch12.AttachmentSupport = (doc.getObject("YZ_Plane"), [""])
sketch12.MapMode = "FlatFace"
add_polygon(sketch12, [(7.5, 12.5), (0, 12.5), (0, 8.8), (0.2, 9), (1.6, 9), (1.6, 10.5), (1.98, 10.88), (7.5, 10.88)])
sketch12.addGeometry(Part.LineSegment(Vector(7.5, 12.5, 0), Vector(0, 12.5, 0)), True)
sketch12.addConstraint([
    Sketcher.Constraint("Horizontal", 0),
    Sketcher.Constraint("Vertical", 1),
    Sketcher.Constraint("Horizontal", 3),
    Sketcher.Constraint("Vertical", 4),
    Sketcher.Constraint("Horizontal", 6),
    Sketcher.Constraint("Vertical", 7),
    Sketcher.Constraint("Horizontal", 8),
    Sketcher.Constraint("Coincident", 8, 1, 7, 2),
    Sketcher.Constraint("PointOnObject", 0, 2, -2),
    Sketcher.Constraint("PointOnObject", 8, 2, -2),
    Sketcher.Constraint("Parallel", 2, 5),
    Sketcher.Constraint("Angle", 2, Q("45 deg")),
    Sketcher.Constraint("DistanceX", 0, 2, 0, 1, Q("7.5 mm")),
    Sketcher.Constraint("DistanceX", 3, 1, 3, 2, Q("1.4 mm")),
    Sketcher.Constraint("DistanceY", 1, 2, 1, 1, Q("3.7 mm")),
    Sketcher.Constraint("DistanceY", 4, 1, 4, 2, Q("1.5 mm")),
    Sketcher.Constraint("DistanceY", -1, 1, 2, 2, Q("9 mm")),
    Sketcher.Constraint("DistanceY", 4, 2, 0, 2, Q("2 mm")),
    Sketcher.Constraint("DistanceX", 6, 1, 6, 2, Q("5.521 mm")),
])
groove3 = body.newObject("PartDesign::Groove", "Groove002")
groove3.Profile = sketch12
groove3.ReferenceAxis = (sketch12, ["Axis0"])
groove3.Angle = 360

sketch13 = body.newObject("Sketcher::SketchObject", "Sketch012")
sketch13.AttachmentSupport = (doc.getObject("YZ_Plane"), [""])
sketch13.MapMode = "FlatFace"
add_polygon(sketch13, [(7.5, -12.5), (0, -12.5), (0, -16.2), (0.2, -16), (1.6, -16), (1.6, -14.5), (1.98, -14.12), (7.5, -14.12)])
sketch13.addGeometry(Part.LineSegment(Vector(7.5, -12.5, 0), Vector(0, -12.5, 0)), True)
sketch13.addConstraint([
    Sketcher.Constraint("Horizontal", 0),
    Sketcher.Constraint("Vertical", 1),
    Sketcher.Constraint("Horizontal", 3),
    Sketcher.Constraint("Vertical", 4),
    Sketcher.Constraint("Horizontal", 6),
    Sketcher.Constraint("Vertical", 7),
    Sketcher.Constraint("Horizontal", 8),
    Sketcher.Constraint("Coincident", 8, 1, 7, 2),
    Sketcher.Constraint("PointOnObject", 0, 2, -2),
    Sketcher.Constraint("PointOnObject", 8, 2, -2),
    Sketcher.Constraint("Parallel", 2, 5),
    Sketcher.Constraint("Angle", 2, Q("45 deg")),
    Sketcher.Constraint("DistanceX", 0, 2, 0, 1, Q("7.5 mm")),
    Sketcher.Constraint("DistanceX", 3, 1, 3, 2, Q("1.4 mm")),
    Sketcher.Constraint("DistanceY", 1, 2, 1, 1, Q("3.7 mm")),
    Sketcher.Constraint("DistanceY", 4, 1, 4, 2, Q("1.5 mm")),
    Sketcher.Constraint("DistanceY", 2, 2, -1, 1, Q("16 mm")),
    Sketcher.Constraint("DistanceY", 4, 2, 0, 2, Q("2 mm")),
    Sketcher.Constraint("DistanceX", 6, 1, 6, 2, Q("5.521 mm")),
])
groove4 = body.newObject("PartDesign::Groove", "Groove003")
groove4.Profile = sketch13
groove4.ReferenceAxis = (sketch13, ["Axis0"])
groove4.Angle = 360

sketch14 = body.newObject("Sketcher::SketchObject", "Sketch013")
sketch14.AttachmentSupport = (doc.getObject("XZ_Plane"), [""])
sketch14.MapMode = "FlatFace"
sketch14.AttachmentOffset = App.Placement(Vector(0, 0, -47.5), App.Rotation())
add_polygon(sketch14, [(0.8, -8), (-0.8, -8), (-0.8, -1.5), (0.8, -1.5)])
sketch14.addConstraint([
    Sketcher.Constraint("Horizontal", 0),
    Sketcher.Constraint("Vertical", 1),
    Sketcher.Constraint("Horizontal", 2),
    Sketcher.Constraint("Vertical", 3),
    Sketcher.Constraint("DistanceX", 0, 2, 0, 1, Q("1.5 mm")),
    Sketcher.Constraint("DistanceY", 1, 1, 1, 2, Q("6.5 mm")),
    Sketcher.Constraint("DistanceY", 0, 2, -1, 1, Q("8 mm")),
    Sketcher.Constraint("DistanceX", 0, 2, -1, 1, Q("0.75 mm")),
])
pocket4 = body.newObject("PartDesign::Pocket", "Pocket003")
pocket4.Profile = sketch14
pocket4.Length = 1.5
pocket4.Reversed = True

sketch15 = body.newObject("Sketcher::SketchObject", "Sketch014")
sketch15.AttachmentSupport = (doc.getObject("XZ_Plane"), [""])
sketch15.MapMode = "FlatFace"
sketch15.AttachmentOffset = App.Placement(Vector(0, 0, -47.5), App.Rotation())
add_polygon(sketch15, [(-0.8, 1.5), (-0.8, 8), (0.8, 8), (0.8, 1.5)])
sketch15.addConstraint([
    Sketcher.Constraint("Vertical", 0),
    Sketcher.Constraint("Horizontal", 1),
    Sketcher.Constraint("Vertical", 2),
    Sketcher.Constraint("Horizontal", 3),
    Sketcher.Constraint("DistanceX", 1, 1, 1, 2, Q("1.5 mm")),
    Sketcher.Constraint("DistanceY", 0, 1, 0, 2, Q("6.5 mm")),
    Sketcher.Constraint("DistanceY", -1, 1, 0, 2, Q("8 mm")),
    Sketcher.Constraint("DistanceX", 0, 2, -1, 1, Q("0.75 mm")),
])
pocket5 = body.newObject("PartDesign::Pocket", "Pocket004")
pocket5.Profile = sketch15
pocket5.Length = 1.5
pocket5.Reversed = True

doc.recompute()
